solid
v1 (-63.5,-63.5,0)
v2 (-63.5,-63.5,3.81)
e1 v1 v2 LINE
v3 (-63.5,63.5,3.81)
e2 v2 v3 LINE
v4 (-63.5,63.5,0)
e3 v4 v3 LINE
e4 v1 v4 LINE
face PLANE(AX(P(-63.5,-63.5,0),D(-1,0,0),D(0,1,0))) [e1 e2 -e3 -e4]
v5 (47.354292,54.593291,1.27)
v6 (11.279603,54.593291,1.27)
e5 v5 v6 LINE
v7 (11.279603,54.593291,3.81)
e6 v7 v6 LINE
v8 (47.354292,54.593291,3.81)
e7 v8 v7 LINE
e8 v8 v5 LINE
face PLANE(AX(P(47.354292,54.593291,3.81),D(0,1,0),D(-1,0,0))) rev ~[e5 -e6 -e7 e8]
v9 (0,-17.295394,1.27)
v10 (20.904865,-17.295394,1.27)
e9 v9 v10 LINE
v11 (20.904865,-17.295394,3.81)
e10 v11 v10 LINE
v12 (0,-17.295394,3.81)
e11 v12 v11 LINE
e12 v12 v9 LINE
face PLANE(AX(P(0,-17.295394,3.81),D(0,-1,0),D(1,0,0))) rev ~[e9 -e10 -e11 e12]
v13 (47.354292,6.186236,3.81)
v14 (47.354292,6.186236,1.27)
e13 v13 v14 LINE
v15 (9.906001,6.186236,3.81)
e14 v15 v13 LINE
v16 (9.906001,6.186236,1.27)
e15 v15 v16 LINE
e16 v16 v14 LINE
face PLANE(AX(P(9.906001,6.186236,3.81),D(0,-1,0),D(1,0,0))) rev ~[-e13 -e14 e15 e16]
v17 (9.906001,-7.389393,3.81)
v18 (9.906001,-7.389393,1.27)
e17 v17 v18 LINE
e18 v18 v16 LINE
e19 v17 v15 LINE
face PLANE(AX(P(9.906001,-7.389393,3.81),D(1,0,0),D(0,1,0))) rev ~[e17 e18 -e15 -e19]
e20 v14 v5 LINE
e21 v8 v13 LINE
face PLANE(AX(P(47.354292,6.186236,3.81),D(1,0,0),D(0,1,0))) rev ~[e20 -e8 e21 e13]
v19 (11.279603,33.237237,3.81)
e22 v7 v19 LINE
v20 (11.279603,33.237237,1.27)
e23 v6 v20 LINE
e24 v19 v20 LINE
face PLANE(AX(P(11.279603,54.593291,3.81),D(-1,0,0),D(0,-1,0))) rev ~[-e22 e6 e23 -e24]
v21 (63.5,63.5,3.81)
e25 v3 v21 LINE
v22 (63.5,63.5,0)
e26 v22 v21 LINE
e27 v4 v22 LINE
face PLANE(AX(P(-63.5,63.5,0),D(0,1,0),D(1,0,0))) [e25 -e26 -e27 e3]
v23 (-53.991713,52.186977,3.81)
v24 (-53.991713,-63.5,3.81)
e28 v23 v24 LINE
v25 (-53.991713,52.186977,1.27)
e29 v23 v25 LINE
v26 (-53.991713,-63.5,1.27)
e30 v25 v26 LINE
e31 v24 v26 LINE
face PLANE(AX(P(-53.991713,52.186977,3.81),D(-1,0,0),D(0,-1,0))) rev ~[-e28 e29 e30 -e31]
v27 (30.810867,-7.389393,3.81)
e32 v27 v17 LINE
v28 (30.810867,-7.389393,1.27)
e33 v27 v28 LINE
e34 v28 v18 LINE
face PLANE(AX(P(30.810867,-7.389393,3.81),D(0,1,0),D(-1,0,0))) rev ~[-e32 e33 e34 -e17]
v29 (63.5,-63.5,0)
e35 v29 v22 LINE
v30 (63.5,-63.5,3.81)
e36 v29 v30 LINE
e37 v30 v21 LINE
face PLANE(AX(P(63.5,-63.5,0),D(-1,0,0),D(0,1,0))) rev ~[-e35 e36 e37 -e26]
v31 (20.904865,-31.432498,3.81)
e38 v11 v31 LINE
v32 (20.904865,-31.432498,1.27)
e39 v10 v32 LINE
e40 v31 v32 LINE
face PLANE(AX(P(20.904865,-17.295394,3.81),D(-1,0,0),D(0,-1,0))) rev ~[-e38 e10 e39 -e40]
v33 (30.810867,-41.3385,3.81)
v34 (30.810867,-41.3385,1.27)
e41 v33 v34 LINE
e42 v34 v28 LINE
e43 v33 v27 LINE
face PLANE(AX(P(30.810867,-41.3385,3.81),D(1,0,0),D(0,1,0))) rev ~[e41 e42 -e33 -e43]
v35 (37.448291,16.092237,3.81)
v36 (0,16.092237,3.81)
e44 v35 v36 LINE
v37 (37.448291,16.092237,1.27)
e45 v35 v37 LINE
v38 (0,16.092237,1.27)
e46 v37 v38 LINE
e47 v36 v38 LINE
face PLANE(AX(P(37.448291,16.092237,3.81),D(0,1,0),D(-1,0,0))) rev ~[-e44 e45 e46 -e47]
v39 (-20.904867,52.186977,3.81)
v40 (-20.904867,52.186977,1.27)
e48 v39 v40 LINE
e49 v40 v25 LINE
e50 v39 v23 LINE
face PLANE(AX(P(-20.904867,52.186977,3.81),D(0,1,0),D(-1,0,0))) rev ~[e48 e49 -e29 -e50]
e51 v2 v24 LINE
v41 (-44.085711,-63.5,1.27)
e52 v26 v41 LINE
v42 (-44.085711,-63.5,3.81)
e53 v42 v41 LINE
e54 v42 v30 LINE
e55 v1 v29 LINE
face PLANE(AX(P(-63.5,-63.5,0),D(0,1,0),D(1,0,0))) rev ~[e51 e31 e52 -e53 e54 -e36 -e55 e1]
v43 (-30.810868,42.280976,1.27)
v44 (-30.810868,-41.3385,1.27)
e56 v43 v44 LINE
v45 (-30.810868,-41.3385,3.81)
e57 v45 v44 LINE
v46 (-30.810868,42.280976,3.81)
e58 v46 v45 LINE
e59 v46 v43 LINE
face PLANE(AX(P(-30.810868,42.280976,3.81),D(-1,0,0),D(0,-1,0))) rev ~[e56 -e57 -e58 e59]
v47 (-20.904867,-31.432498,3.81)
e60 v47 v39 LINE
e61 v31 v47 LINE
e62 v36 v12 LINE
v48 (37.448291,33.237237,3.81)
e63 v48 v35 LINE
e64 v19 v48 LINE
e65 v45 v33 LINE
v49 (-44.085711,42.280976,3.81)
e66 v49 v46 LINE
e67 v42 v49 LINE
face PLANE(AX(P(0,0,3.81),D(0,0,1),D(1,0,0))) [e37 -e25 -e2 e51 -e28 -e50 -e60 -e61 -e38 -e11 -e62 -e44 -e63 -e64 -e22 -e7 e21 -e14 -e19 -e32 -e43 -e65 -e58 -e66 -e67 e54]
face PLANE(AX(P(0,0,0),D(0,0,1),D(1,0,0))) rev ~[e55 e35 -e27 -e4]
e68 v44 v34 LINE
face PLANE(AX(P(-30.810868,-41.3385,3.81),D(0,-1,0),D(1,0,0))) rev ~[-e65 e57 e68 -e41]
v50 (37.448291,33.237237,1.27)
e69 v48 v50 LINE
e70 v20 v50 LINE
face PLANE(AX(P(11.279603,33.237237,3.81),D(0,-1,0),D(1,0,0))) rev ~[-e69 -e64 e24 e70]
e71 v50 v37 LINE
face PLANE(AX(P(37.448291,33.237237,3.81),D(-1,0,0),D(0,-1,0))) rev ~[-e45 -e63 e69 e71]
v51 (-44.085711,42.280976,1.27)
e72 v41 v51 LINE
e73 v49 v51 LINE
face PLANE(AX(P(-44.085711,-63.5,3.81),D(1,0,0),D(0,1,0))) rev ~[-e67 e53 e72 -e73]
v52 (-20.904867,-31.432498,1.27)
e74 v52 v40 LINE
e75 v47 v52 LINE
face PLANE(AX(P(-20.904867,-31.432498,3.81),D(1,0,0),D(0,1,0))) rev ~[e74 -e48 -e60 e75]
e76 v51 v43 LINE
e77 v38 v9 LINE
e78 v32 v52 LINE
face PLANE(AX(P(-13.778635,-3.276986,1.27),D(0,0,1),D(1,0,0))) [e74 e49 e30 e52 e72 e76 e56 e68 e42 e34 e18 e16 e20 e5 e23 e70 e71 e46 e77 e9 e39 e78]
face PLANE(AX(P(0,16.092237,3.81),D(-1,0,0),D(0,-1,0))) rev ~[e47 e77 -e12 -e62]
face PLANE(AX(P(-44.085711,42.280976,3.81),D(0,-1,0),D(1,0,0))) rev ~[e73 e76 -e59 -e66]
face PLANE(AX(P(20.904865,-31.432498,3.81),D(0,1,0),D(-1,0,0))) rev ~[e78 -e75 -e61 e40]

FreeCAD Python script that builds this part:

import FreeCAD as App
import Part
import Sketcher
from FreeCAD import Vector
Q = App.Units.Quantity

doc = App.newDocument("Part")
body = doc.addObject("PartDesign::Body", "Body")

sketch1 = body.newObject("Sketcher::SketchObject", "Sketch")
sketch1.AttachmentSupport = (doc.getObject("XY_Plane"), [""])
sketch1.MapMode = "FlatFace"
sketch1.addGeometry([
    Part.LineSegment(Vector(-64, 64, 0), Vector(-64, -64, 0)),
    Part.LineSegment(Vector(-64, -64, 0), Vector(64, -64, 0)),
    Part.LineSegment(Vector(64, -64, 0), Vector(64, 64, 0)),
    Part.LineSegment(Vector(64, 64, 0), Vector(-64, 64, 0)),
], False)
sketch1.addConstraint([
    Sketcher.Constraint("Coincident", 0, 2, 1, 1),
    Sketcher.Constraint("Coincident", 1, 2, 2, 1),
    Sketcher.Constraint("Coincident", 2, 2, 3, 1),
    Sketcher.Constraint("Coincident", 3, 2, 0, 1),
    Sketcher.Constraint("Vertical", 0),
    Sketcher.Constraint("Horizontal", 1),
    Sketcher.Constraint("Vertical", 2),
    Sketcher.Constraint("Horizontal", 3),
    Sketcher.Constraint("Symmetric", 0, 2, 2, 2, -1, 1),
    Sketcher.Constraint("Equal", 3, 0),
    Sketcher.Constraint("DistanceX", 1, 1, 1, 2, Q("5 in")),
])
pad1 = body.newObject("PartDesign::Pad", "Pad")
pad1.Profile = sketch1
pad1.Length = Q("0.15 in")

sketch2 = body.newObject("Sketcher::SketchObject", "Sketch001")
sketch2.AttachmentSupport = (doc.getObject("XY_Plane"), [""])
sketch2.MapMode = "FlatFace"
sketch2.AttachmentOffset = App.Placement(Vector(0, 0, 0.15 * 25.4), App.Rotation())
sketch2.addGeometry([
    Part.LineSegment(Vector(-54, 52, 0), Vector(-54, -64, 0)),
    Part.LineSegment(Vector(-54, -64, 0), Vector(-44, -64, 0)),
    Part.LineSegment(Vector(-44, -64, 0), Vector(-44, 42, 0)),
    Part.LineSegment(Vector(-44, 42, 0), Vector(-31, 42, 0)),
    Part.LineSegment(Vector(-31, 42, 0), Vector(-31, -41, 0)),
    Part.LineSegment(Vector(-31, -41, 0), Vector(31, -41, 0)),
    Part.LineSegment(Vector(31, -41, 0), Vector(31, -7, 0)),
    Part.LineSegment(Vector(31, -7, 0), Vector(10, -7, 0)),
    Part.LineSegment(Vector(10, -7, 0), Vector(10, 6, 0)),
    Part.LineSegment(Vector(10, 6, 0), Vector(47, 6, 0)),
    Part.LineSegment(Vector(47, 6, 0), Vector(47, 33, 0)),
    Part.LineSegment(Vector(47, 33, 0), Vector(37, 33, 0)),
    Part.LineSegment(Vector(37, 33, 0), Vector(37, 16, 0)),
    Part.LineSegment(Vector(37, 16, 0), Vector(0, 16, 0)),
    Part.LineSegment(Vector(0, 16, 0), Vector(0, -17, 0)),
    Part.LineSegment(Vector(0, -17, 0), Vector(21, -17, 0)),
    Part.LineSegment(Vector(21, -17, 0), Vector(21, -31, 0)),
    Part.LineSegment(Vector(21, -31, 0), Vector(-21, -31, 0)),
    Part.LineSegment(Vector(-21, -31, 0), Vector(-21, 52, 0)),
    Part.LineSegment(Vector(-21, 52, 0), Vector(-54, 52, 0)),
], False)
sketch2.addConstraint([
    Sketcher.Constraint("Coincident", 0, 2, 1, 1),
    Sketcher.Constraint("Coincident", 1, 2, 2, 1),
    Sketcher.Constraint("Coincident", 2, 2, 3, 1),
    Sketcher.Constraint("Coincident", 3, 2, 4, 1),
    Sketcher.Constraint("Coincident", 4, 2, 5, 1),
    Sketcher.Constraint("Coincident", 5, 2, 6, 1),
    Sketcher.Constraint("Coincident", 6, 2, 7, 1),
    Sketcher.Constraint("Coincident", 7, 2, 8, 1),
    Sketcher.Constraint("Coincident", 8, 2, 9, 1),
    Sketcher.Constraint("Coincident", 9, 2, 10, 1),
    Sketcher.Constraint("Coincident", 10, 2, 11, 1),
    Sketcher.Constraint("Coincident", 11, 2, 12, 1),
    Sketcher.Constraint("Coincident", 12, 2, 13, 1),
    Sketcher.Constraint("Coincident", 13, 2, 14, 1),
    Sketcher.Constraint("Coincident", 14, 2, 15, 1),
    Sketcher.Constraint("Coincident", 15, 2, 16, 1),
    Sketcher.Constraint("Coincident", 16, 2, 17, 1),
    Sketcher.Constraint("Coincident", 17, 2, 18, 1),
    Sketcher.Constraint("Coincident", 18, 2, 19, 1),
    Sketcher.Constraint("Coincident", 19, 2, 0, 1),
    Sketcher.Constraint("Vertical", 0),
    Sketcher.Constraint("Horizontal", 1),
    Sketcher.Constraint("Vertical", 2),
    Sketcher.Constraint("Horizontal", 3),
    Sketcher.Constraint("Vertical", 4),
    Sketcher.Constraint("Horizontal", 5),
    Sketcher.Constraint("Vertical", 6),
    Sketcher.Constraint("Horizontal", 7),
    Sketcher.Constraint("Vertical", 8),
    Sketcher.Constraint("Horizontal", 9),
    Sketcher.Constraint("Vertical", 10),
    Sketcher.Constraint("Horizontal", 11),
    Sketcher.Constraint("Vertical", 12),
    Sketcher.Constraint("Horizontal", 13),
    Sketcher.Constraint("Vertical", 14),
    Sketcher.Constraint("Horizontal", 15),
    Sketcher.Constraint("Vertical", 16),
    Sketcher.Constraint("Horizontal", 17),
    Sketcher.Constraint("Vertical", 18),
    Sketcher.Constraint("Horizontal", 19),
    Sketcher.Constraint("PointOnObject", 13, 2, -2),
    Sketcher.Constraint("Equal", 1, 11),
    Sketcher.Constraint("Equal", 9, 13),
    Sketcher.Constraint("Equal", 7, 15),
    Sketcher.Constraint("Equal", 4, 18),
    Sketcher.Constraint("DistanceX", 1, 1, 1, 2, Q("0.3900001 in")),
    Sketcher.Constraint("DistanceY", 0, 2, -1, 1, Q("2.5 in")),
    Sketcher.Constraint("DistanceY", 10, 1, 10, 2, Q("1.065 in")),
    Sketcher.Constraint("DistanceY", 12, 2, 12, 1, Q("0.675 in")),
    Sketcher.Constraint("DistanceY", 14, 2, 7, 2, Q("0.39 in")),
    Sketcher.Constraint("DistanceY", 5, 2, 16, 2, Q("0.3900001 in")),
    Sketcher.Constraint("DistanceX", 4, 2, 17, 2, Q("0.39 in")),
    Sketcher.Constraint("DistanceY", 4, 2, -1, 1, Q("1.6275 in")),
    Sketcher.Constraint("DistanceX", 9, 1, 9, 2, 37.448291),
    Sketcher.Constraint("DistanceX", 17, 2, 17, 1, 41.809732),
    Sketcher.Constraint("DistanceY", 8, 1, 8, 2, 13.575629),
    Sketcher.Constraint("DistanceX", 3, 1, 3, 2, 13.274843),
    Sketcher.Constraint("DistanceX", 7, 2, 7, 1, 20.904866),
    Sketcher.Constraint("DistanceY", 0, 2, 0, 1, 115.686977),
    Sketcher.Constraint("DistanceY", 6, 1, 6, 2, 33.949107),
])
pocket1 = body.newObject("PartDesign::Pocket", "Pocket")
pocket1.Profile = sketch2
pocket1.Length = Q("0.1 in")

sketch3 = body.newObject("Sketcher::SketchObject", "Sketch002")
sketch3.AttachmentSupport = (doc.getObject("XY_Plane"), [""])
sketch3.MapMode = "FlatFace"
sketch3.AttachmentOffset = App.Placement(Vector(0, 0, 0.15 * 25.4), App.Rotation())
sketch3.addGeometry([
    Part.LineSegment(Vector(47, 33, 0), Vector(47, 55, 0)),
    Part.LineSegment(Vector(47, 55, 0), Vector(11, 55, 0)),
    Part.LineSegment(Vector(11, 55, 0), Vector(11, 33, 0)),
    Part.LineSegment(Vector(11, 33, 0), Vector(47, 33, 0)),
], False)
sketch3.addConstraint([
    Sketcher.Constraint("Coincident", 0, 2, 1, 1),
    Sketcher.Constraint("Coincident", 1, 2, 2, 1),
    Sketcher.Constraint("Coincident", 2, 2, 3, 1),
    Sketcher.Constraint("Coincident", 3, 2, 0, 1),
    Sketcher.Constraint("Vertical", 0),
    Sketcher.Constraint("Horizontal", 1),
    Sketcher.Constraint("Vertical", 2),
    Sketcher.Constraint("Horizontal", 3),
    Sketcher.Constraint("DistanceX", 1, 2, 1, 1, 36.074689),
    Sketcher.Constraint("DistanceY", 0, 1, 0, 2, 21.356054),
    Sketcher.Constraint("DistanceY", -1, 1, 0, 2, 54.593291),
    Sketcher.Constraint("DistanceX", -1, 1, 0, 2, 47.354292),
])
pocket2 = body.newObject("PartDesign::Pocket", "Pocket001")
pocket2.Profile = sketch3
pocket2.Length = Q("0.1 in")

doc.recompute()
